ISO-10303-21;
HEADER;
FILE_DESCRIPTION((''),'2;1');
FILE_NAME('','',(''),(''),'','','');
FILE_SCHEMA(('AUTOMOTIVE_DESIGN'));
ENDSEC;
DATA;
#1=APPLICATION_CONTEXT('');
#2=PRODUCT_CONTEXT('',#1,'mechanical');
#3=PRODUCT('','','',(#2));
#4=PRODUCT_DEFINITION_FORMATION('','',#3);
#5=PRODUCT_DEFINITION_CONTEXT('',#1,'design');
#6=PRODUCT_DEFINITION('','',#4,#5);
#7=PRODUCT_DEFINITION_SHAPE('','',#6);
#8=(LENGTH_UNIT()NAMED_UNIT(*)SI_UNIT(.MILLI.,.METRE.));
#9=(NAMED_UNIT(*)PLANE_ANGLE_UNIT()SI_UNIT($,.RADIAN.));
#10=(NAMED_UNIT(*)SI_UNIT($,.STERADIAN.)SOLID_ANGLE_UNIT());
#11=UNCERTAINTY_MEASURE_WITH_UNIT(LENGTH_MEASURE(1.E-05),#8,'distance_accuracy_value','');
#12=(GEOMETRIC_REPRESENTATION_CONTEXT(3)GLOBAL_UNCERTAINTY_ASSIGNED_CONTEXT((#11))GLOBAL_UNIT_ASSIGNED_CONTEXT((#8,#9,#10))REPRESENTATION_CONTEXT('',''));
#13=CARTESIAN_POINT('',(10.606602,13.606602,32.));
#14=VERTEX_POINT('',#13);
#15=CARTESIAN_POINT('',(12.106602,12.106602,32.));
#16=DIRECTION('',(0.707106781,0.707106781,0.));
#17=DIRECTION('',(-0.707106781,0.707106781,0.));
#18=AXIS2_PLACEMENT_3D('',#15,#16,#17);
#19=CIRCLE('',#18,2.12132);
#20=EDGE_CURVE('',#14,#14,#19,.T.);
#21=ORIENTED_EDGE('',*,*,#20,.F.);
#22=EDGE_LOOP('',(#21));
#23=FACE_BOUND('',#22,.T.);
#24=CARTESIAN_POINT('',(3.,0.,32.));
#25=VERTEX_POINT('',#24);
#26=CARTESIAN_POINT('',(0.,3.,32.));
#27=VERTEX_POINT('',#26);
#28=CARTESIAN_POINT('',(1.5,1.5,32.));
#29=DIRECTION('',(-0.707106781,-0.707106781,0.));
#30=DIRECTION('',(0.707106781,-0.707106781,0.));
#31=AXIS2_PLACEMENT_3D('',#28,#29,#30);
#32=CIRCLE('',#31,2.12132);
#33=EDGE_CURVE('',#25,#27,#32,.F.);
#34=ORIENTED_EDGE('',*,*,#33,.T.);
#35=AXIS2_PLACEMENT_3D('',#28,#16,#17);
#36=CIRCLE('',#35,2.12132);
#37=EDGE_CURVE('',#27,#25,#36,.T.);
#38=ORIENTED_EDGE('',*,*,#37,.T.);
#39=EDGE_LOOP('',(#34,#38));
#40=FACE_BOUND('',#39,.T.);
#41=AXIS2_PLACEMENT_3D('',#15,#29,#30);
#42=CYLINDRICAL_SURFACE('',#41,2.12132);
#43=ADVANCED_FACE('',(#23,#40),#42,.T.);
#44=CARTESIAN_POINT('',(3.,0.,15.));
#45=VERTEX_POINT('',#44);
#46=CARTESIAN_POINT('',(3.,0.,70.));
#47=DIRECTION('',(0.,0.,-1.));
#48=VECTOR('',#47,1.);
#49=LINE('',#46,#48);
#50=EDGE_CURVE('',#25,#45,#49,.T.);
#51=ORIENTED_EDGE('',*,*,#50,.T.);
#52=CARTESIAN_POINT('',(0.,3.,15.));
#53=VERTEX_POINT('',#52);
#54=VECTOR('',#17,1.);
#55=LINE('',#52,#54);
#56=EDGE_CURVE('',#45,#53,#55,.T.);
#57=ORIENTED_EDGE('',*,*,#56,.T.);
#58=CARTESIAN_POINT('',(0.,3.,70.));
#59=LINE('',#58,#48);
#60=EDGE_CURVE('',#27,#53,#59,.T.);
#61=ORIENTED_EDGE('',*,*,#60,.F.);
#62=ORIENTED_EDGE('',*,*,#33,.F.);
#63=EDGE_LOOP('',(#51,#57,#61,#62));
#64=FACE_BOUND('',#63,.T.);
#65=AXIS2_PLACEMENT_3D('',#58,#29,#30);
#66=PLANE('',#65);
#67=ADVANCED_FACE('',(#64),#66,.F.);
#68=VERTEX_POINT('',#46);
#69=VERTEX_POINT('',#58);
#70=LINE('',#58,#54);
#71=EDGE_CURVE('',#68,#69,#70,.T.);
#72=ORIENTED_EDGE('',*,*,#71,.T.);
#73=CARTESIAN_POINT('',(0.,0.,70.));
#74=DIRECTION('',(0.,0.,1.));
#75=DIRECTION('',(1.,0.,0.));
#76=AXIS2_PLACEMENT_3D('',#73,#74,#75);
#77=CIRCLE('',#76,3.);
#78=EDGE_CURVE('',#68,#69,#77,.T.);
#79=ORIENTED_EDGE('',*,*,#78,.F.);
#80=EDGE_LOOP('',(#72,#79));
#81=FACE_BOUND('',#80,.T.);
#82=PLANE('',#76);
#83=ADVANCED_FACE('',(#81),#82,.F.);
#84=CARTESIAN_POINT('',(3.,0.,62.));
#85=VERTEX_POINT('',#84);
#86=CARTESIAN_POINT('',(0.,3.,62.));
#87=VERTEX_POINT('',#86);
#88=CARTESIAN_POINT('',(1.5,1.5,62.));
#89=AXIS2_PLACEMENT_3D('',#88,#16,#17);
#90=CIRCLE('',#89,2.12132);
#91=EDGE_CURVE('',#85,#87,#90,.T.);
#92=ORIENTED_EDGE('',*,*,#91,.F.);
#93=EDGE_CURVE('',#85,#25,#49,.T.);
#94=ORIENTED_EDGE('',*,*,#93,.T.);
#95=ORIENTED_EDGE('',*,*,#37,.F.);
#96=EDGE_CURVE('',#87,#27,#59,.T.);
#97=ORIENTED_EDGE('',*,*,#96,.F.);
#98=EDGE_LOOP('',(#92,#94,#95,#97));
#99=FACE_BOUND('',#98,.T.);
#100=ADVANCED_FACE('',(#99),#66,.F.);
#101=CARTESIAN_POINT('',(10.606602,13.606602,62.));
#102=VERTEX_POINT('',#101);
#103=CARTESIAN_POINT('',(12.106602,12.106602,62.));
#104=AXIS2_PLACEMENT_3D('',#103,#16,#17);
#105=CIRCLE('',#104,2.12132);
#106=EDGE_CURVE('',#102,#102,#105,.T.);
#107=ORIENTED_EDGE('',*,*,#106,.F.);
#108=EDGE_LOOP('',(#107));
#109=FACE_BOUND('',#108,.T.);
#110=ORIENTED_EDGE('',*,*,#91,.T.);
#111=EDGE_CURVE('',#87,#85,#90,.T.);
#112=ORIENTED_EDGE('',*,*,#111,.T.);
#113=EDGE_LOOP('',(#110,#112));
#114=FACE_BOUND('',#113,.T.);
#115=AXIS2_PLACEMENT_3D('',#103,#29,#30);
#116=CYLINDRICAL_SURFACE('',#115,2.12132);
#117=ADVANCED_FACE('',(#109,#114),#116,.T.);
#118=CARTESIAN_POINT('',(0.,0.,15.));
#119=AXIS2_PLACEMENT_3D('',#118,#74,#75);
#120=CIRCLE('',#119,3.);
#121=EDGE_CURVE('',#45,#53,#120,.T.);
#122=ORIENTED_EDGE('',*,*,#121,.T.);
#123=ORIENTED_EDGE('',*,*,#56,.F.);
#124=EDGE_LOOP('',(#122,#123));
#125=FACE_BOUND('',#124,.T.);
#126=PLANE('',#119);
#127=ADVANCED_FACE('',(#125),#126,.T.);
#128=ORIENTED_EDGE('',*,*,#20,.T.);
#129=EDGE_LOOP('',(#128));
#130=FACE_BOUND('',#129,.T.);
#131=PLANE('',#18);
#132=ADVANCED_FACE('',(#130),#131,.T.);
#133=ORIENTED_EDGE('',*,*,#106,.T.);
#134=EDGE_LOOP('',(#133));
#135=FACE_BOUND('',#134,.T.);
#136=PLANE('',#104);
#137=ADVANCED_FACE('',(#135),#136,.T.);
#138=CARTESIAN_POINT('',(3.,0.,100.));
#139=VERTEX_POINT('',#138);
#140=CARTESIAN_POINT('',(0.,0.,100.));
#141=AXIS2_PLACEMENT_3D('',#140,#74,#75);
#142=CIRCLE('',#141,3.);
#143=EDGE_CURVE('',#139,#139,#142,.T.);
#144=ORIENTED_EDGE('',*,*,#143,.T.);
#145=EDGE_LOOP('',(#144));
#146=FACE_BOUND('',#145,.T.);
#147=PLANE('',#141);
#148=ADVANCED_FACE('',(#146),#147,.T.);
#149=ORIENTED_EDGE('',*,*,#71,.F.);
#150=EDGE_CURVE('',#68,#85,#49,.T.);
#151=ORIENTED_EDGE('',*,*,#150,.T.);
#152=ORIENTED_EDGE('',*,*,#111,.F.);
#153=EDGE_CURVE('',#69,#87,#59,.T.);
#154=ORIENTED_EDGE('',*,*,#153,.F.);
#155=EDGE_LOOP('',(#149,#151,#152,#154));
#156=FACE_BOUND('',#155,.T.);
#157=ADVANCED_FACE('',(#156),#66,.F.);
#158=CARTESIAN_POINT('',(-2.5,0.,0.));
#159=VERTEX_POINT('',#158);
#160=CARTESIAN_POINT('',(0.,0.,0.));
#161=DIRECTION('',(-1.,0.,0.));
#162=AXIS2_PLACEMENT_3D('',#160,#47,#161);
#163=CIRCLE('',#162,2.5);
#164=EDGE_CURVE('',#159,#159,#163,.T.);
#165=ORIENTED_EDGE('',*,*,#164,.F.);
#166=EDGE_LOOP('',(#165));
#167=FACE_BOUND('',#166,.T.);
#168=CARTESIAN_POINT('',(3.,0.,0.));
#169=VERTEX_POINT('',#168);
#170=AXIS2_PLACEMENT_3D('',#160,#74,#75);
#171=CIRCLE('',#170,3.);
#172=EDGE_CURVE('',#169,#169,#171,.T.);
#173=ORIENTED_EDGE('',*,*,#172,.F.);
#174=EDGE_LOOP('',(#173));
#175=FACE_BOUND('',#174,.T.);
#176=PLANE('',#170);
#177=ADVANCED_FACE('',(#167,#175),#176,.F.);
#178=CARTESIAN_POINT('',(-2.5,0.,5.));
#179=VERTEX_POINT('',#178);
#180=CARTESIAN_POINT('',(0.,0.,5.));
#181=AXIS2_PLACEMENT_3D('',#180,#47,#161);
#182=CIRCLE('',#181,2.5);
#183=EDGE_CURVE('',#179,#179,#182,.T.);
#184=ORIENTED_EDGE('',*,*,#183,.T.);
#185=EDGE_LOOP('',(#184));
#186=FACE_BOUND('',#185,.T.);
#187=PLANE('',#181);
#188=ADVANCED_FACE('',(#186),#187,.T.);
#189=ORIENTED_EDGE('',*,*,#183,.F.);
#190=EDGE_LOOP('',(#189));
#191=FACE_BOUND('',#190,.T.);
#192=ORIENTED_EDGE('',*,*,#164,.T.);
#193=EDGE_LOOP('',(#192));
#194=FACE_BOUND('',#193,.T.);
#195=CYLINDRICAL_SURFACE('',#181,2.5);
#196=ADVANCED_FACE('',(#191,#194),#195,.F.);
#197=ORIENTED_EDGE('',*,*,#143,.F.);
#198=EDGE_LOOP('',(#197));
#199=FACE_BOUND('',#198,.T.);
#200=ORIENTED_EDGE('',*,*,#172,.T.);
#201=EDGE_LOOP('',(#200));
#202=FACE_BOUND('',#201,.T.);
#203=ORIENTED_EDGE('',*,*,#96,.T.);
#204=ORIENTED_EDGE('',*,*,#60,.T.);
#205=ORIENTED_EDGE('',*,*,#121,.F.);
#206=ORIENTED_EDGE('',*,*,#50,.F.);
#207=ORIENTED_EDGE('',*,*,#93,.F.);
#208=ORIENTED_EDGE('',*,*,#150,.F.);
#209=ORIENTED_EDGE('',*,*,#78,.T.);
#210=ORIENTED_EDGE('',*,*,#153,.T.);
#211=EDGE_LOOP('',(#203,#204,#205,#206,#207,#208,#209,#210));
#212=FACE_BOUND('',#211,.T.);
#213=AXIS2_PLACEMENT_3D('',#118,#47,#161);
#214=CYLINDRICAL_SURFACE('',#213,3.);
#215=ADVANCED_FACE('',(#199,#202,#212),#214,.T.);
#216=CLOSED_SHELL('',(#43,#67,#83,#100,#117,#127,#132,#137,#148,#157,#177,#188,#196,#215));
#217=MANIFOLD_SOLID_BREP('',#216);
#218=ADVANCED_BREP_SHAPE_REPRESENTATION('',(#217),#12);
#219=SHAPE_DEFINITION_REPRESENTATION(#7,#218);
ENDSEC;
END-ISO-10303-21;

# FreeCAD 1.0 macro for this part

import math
import FreeCAD as App
import Part
import Sketcher
Q = App.Units.Quantity

doc = App.newDocument("Part")
params = doc.addObject("Spreadsheet::Sheet", "Params")
for row, (alias, value) in enumerate([
    ("sketch1_diameter", "6 mm"),
    ("pad1_length", "15 mm"),
    ("sketch2_diameter", "5 mm"),
    ("pocket1_length", "5 mm"),
    ("sketch3_radius", "3 mm"),
    ("pad2_length", "55 mm"),
    ("pad3_length", "15 mm"),
    ("sketch5_diameter", "6 mm"),
    ("pad4_length", "30 mm"),
], start=1):
    params.set(f"A{row}", alias)
    params.set(f"B{row}", "=" + value)
    params.setAlias(f"B{row}", alias)

body = doc.addObject("PartDesign::Body", "Body")

# Sketch on XY plane
sketch1 = body.newObject("Sketcher::SketchObject", "Sketch")
sketch1.AttachmentSupport = (doc.getObject("XY_Plane"), [""])
sketch1.MapMode = "FlatFace"
sketch1.addGeometry(Part.Circle(App.Vector(0, 0, 0), App.Vector(0, 0, 1), 3), False)
sketch1.addConstraint([
    Sketcher.Constraint("Coincident", 0, 3, -1, 1),
    Sketcher.Constraint("Diameter", 0, Q("6 mm")),
])
sketch1.setExpression("Constraints[1]", "Params.sketch1_diameter")
pad1 = body.newObject("PartDesign::Pad", "Pad")
pad1.Profile = sketch1
pad1.setExpression("Length", "Params.pad1_length")

# Sketch on XY plane
sketch2 = body.newObject("Sketcher::SketchObject", "Sketch001")
sketch2.AttachmentSupport = (doc.getObject("XY_Plane"), [""])
sketch2.MapMode = "FlatFace"
sketch2.addGeometry(Part.Circle(App.Vector(0, 0, 0), App.Vector(0, 0, 1), 2.5), False)
sketch2.addConstraint([
    Sketcher.Constraint("Coincident", 0, 3, -1, 1),
    Sketcher.Constraint("Diameter", 0, Q("5 mm")),
])
sketch2.setExpression("Constraints[1]", "Params.sketch2_diameter")
pocket1 = body.newObject("PartDesign::Pocket", "Pocket")
pocket1.Profile = sketch2
pocket1.setExpression("Length", "Params.pocket1_length")
pocket1.Reversed = True

# Sketch on XY plane
sketch3 = body.newObject("Sketcher::SketchObject", "Sketch002")
sketch3.AttachmentSupport = (doc.getObject("XY_Plane"), [""])
sketch3.MapMode = "FlatFace"
sketch3.AttachmentOffset = App.Placement(App.Vector(0, 0, 15), App.Rotation())
sketch3.addGeometry([
    Part.LineSegment(App.Vector(3, 0, 0), App.Vector(0, 3, 0)),
    Part.ArcOfCircle(Part.Circle(App.Vector(0, 0, 0), App.Vector(0, 0, 1), 3), math.radians(90), math.radians(360)),
], False)
sketch3.addConstraint([
    Sketcher.Constraint("Coincident", 0, 1, 1, 2),
    Sketcher.Constraint("Coincident", 1, 1, 0, 2),
    Sketcher.Constraint("Coincident", 1, 3, -1, 1),
    Sketcher.Constraint("PointOnObject", 0, 1, -1),
    Sketcher.Constraint("PointOnObject", 1, 1, -2),
    Sketcher.Constraint("Radius", 1, Q("3 mm")),
])
sketch3.setExpression("Constraints[5]", "Params.sketch3_radius")
pad2 = body.newObject("PartDesign::Pad", "Pad001")
pad2.Profile = sketch3
pad2.setExpression("Length", "Params.pad2_length")

# Sketch on an angled plane
sketch4 = body.newObject("Sketcher::SketchObject", "Sketch003")
sketch4.Placement = App.Placement(App.Vector(1.5, 1.5, 0), App.Rotation(App.Vector(0, 0, -1), App.Vector(-0.707106781, 0.707106781, 0), App.Vector(0.707106781, 0.707106781, 0), "ZXY"))
sketch4.addGeometry([
    Part.Circle(App.Vector(-62, 0, 0), App.Vector(0, 0, 1), 2.1),
    Part.Circle(App.Vector(-32, 0, 0), App.Vector(0, 0, 1), 2.1),
], False)
sketch4.addConstraint([
    Sketcher.Constraint("Equal", 0, 1),
    Sketcher.Constraint("PointOnObject", 0, 3, -1),
    Sketcher.Constraint("PointOnObject", 1, 3, -1),
    Sketcher.Constraint("DistanceX", 0, 3, -1, 1, Q("62 mm")),
    Sketcher.Constraint("DistanceX", 1, 3, -1, 1, Q("32 mm")),
    Sketcher.Constraint("Diameter", 0, Q("4.242641 mm")),
])
pad3 = body.newObject("PartDesign::Pad", "Pad002")
pad3.Profile = sketch4
pad3.setExpression("Length", "Params.pad3_length")

# Sketch on XY plane
sketch5 = body.newObject("Sketcher::SketchObject", "Sketch004")
sketch5.AttachmentSupport = (doc.getObject("XY_Plane"), [""])
sketch5.MapMode = "FlatFace"
sketch5.AttachmentOffset = App.Placement(App.Vector(0, 0, 70), App.Rotation())
sketch5.addGeometry(Part.Circle(App.Vector(0, 0, 0), App.Vector(0, 0, 1), 3), False)
sketch5.addConstraint([
    Sketcher.Constraint("Coincident", 0, 3, -1, 1),
    Sketcher.Constraint("Diameter", 0, Q("6 mm")),
])
sketch5.setExpression("Constraints[1]", "Params.sketch5_diameter")
pad4 = body.newObject("PartDesign::Pad", "Pad003")
pad4.Profile = sketch5
pad4.setExpression("Length", "Params.pad4_length")

doc.recompute()
